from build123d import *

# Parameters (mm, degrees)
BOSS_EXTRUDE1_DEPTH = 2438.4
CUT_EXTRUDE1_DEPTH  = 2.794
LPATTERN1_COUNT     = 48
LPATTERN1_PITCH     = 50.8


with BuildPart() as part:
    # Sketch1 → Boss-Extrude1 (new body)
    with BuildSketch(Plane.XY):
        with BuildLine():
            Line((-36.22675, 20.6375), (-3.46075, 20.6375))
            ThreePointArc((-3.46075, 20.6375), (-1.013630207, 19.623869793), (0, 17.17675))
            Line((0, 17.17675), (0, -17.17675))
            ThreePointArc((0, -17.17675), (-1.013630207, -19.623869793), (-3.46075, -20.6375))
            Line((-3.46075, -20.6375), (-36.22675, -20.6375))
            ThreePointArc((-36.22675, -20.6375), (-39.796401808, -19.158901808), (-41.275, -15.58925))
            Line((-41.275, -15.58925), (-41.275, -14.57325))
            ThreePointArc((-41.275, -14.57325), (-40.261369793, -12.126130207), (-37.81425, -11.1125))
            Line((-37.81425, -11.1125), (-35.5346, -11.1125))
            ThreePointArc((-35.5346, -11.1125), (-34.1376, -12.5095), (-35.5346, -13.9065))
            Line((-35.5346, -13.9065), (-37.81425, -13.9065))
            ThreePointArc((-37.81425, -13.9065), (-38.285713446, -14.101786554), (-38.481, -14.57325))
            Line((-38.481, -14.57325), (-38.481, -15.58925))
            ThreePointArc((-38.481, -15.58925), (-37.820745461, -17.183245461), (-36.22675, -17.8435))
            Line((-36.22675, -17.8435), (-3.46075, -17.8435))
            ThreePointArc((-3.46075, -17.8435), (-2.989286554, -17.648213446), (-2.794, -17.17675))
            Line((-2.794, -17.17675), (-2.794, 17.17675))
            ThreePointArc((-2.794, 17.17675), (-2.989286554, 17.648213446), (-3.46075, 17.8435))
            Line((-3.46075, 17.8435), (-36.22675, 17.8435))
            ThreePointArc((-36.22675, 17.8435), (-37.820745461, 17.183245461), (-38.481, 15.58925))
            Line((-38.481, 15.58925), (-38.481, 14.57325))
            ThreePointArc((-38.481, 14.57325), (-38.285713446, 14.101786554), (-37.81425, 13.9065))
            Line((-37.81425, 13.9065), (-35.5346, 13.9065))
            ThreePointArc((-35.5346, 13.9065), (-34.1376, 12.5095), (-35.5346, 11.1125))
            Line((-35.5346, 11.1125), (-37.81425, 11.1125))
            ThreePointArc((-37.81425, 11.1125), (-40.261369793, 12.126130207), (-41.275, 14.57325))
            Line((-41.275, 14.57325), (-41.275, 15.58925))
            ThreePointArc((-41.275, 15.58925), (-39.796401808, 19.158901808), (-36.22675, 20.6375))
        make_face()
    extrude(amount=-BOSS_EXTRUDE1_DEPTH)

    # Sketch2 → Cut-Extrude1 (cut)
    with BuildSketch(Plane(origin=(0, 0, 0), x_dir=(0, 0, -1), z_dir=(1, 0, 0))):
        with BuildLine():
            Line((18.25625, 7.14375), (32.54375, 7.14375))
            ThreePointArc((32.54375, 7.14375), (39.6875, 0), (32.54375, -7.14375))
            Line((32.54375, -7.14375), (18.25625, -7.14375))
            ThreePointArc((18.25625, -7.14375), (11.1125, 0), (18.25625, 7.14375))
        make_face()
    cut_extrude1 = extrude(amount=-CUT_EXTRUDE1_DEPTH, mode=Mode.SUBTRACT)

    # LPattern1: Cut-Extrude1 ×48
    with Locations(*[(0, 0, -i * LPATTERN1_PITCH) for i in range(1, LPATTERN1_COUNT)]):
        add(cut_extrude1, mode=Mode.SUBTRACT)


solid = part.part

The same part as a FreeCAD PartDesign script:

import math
import FreeCAD as App
import Part
import Sketcher
Q = App.Units.Quantity

doc = App.newDocument("Part")
params = doc.addObject("Spreadsheet::Sheet", "Params")
for row, (alias, value) in enumerate([
    ("sketch1_radius", "0.055 in"),
    ("sketch1_width", "1.29 in"),
    ("sketch1_height", "0.04 in"),
    ("pad1_length", "96 in"),
    ("sketch2_radius", "0.28125 in"),
    ("sketch2_height", "0.5625 in"),
    ("pocket1_length", "0.11 in"),
    ("linearpattern_pitch", "2 in"),
], start=1):
    params.set(f"A{row}", alias)
    params.set(f"B{row}", "=" + value)
    params.setAlias(f"B{row}", alias)

body = doc.addObject("PartDesign::Body", "Body")

sketch1 = body.newObject("Sketcher::SketchObject", "Sketch")
sketch1.AttachmentSupport = (doc.getObject("XY_Plane"), [""])
sketch1.MapMode = "FlatFace"
sketch1.addGeometry([
    Part.LineSegment(App.Vector(-3.5, 20.6, 0), App.Vector(-36.2, 20.6, 0)),
    Part.ArcOfCircle(Part.Circle(App.Vector(-36.2, 15.6, 0), App.Vector(0, 0, 1), 5), math.radians(90), math.radians(180)),
    Part.LineSegment(App.Vector(-41.3, 15.6, 0), App.Vector(-41.3, 14.6, 0)),
    Part.ArcOfCircle(Part.Circle(App.Vector(-37.8, 14.6, 0), App.Vector(0, 0, 1), 3.5), math.radians(180), math.radians(270)),
    Part.LineSegment(App.Vector(-37.8, 11.1, 0), App.Vector(-35.5, 11.1, 0)),
    Part.ArcOfCircle(Part.Circle(App.Vector(-35.5, 12.5, 0), App.Vector(0, 0, 1), 1.4), math.radians(-90), math.radians(90)),
    Part.LineSegment(App.Vector(-35.5, 13.9, 0), App.Vector(-37.8, 13.9, 0)),
    Part.ArcOfCircle(Part.Circle(App.Vector(-37.8, 14.6, 0), App.Vector(0, 0, 1), 0.7), math.radians(-180), math.radians(-90)),
    Part.LineSegment(App.Vector(-38.5, 14.6, 0), App.Vector(-38.5, 15.6, 0)),
    Part.ArcOfCircle(Part.Circle(App.Vector(-36.2, 15.6, 0), App.Vector(0, 0, 1), 2.3), math.radians(90), math.radians(180)),
    Part.LineSegment(App.Vector(-36.2, 17.8, 0), App.Vector(-3.5, 17.8, 0)),
    Part.ArcOfCircle(Part.Circle(App.Vector(-3.5, 17.2, 0), App.Vector(0, 0, 1), 0.7), math.radians(0), math.radians(90)),
    Part.LineSegment(App.Vector(-2.8, 17.2, 0), App.Vector(-2.8, -17.2, 0)),
    Part.ArcOfCircle(Part.Circle(App.Vector(-3.5, -17.2, 0), App.Vector(0, 0, 1), 0.7), math.radians(-90), math.radians(0)),
    Part.LineSegment(App.Vector(-3.5, -17.8, 0), App.Vector(-36.2, -17.8, 0)),
    Part.ArcOfCircle(Part.Circle(App.Vector(-36.2, -15.6, 0), App.Vector(0, 0, 1), 2.3), math.radians(-180), math.radians(-90)),
    Part.LineSegment(App.Vector(-38.5, -15.6, 0), App.Vector(-38.5, -14.6, 0)),
    Part.ArcOfCircle(Part.Circle(App.Vector(-37.8, -14.6, 0), App.Vector(0, 0, 1), 0.7), math.radians(90), math.radians(180)),
    Part.LineSegment(App.Vector(-37.8, -13.9, 0), App.Vector(-35.5, -13.9, 0)),
    Part.ArcOfCircle(Part.Circle(App.Vector(-35.5, -12.5, 0), App.Vector(0, 0, 1), 1.4), math.radians(-90), math.radians(90)),
    Part.LineSegment(App.Vector(-35.5, -11.1, 0), App.Vector(-37.8, -11.1, 0)),
    Part.ArcOfCircle(Part.Circle(App.Vector(-37.8, -14.6, 0), App.Vector(0, 0, 1), 3.5), math.radians(90), math.radians(180)),
    Part.LineSegment(App.Vector(-41.3, -14.6, 0), App.Vector(-41.3, -15.6, 0)),
    Part.ArcOfCircle(Part.Circle(App.Vector(-36.2, -15.6, 0), App.Vector(0, 0, 1), 5), math.radians(180), math.radians(270)),
    Part.LineSegment(App.Vector(-36.2, -20.6, 0), App.Vector(-3.5, -20.6, 0)),
    Part.ArcOfCircle(Part.Circle(App.Vector(-3.5, -17.2, 0), App.Vector(0, 0, 1), 3.5), math.radians(-90), math.radians(0)),
    Part.LineSegment(App.Vector(0, -17.2, 0), App.Vector(0, 17.2, 0)),
    Part.ArcOfCircle(Part.Circle(App.Vector(-3.5, 17.2, 0), App.Vector(0, 0, 1), 3.5), math.radians(0), math.radians(90)),
], False)
sketch1.addConstraint([
    Sketcher.Constraint("Tangent", 0, 2, 1, 1),
    Sketcher.Constraint("Tangent", 1, 2, 2, 1),
    Sketcher.Constraint("Tangent", 2, 2, 3, 1),
    Sketcher.Constraint("Tangent", 3, 2, 4, 1),
    Sketcher.Constraint("Tangent", 4, 2, 5, 1),
    Sketcher.Constraint("Tangent", 5, 2, 6, 1),
    Sketcher.Constraint("Tangent", 6, 2, 7, 2),
    Sketcher.Constraint("Tangent", 7, 1, 8, 1),
    Sketcher.Constraint("Tangent", 8, 2, 9, 2),
    Sketcher.Constraint("Tangent", 9, 1, 10, 1),
    Sketcher.Constraint("Tangent", 10, 2, 11, 2),
    Sketcher.Constraint("Tangent", 11, 1, 12, 1),
    Sketcher.Constraint("Tangent", 12, 2, 13, 2),
    Sketcher.Constraint("Tangent", 13, 1, 14, 1),
    Sketcher.Constraint("Tangent", 14, 2, 15, 2),
    Sketcher.Constraint("Tangent", 15, 1, 16, 1),
    Sketcher.Constraint("Tangent", 16, 2, 17, 2),
    Sketcher.Constraint("Tangent", 17, 1, 18, 1),
    Sketcher.Constraint("Tangent", 18, 2, 19, 1),
    Sketcher.Constraint("Tangent", 19, 2, 20, 1),
    Sketcher.Constraint("Tangent", 20, 2, 21, 1),
    Sketcher.Constraint("Tangent", 21, 2, 22, 1),
    Sketcher.Constraint("Tangent", 22, 2, 23, 1),
    Sketcher.Constraint("Tangent", 23, 2, 24, 1),
    Sketcher.Constraint("Tangent", 24, 2, 25, 1),
    Sketcher.Constraint("Tangent", 25, 2, 26, 1),
    Sketcher.Constraint("Tangent", 26, 2, 27, 1),
    Sketcher.Constraint("Tangent", 27, 2, 0, 1),
    Sketcher.Constraint("Horizontal", 0),
    Sketcher.Constraint("Vertical", 2),
    Sketcher.Constraint("Horizontal", 4),
    Sketcher.Constraint("Horizontal", 6),
    Sketcher.Constraint("Vertical", 8),
    Sketcher.Constraint("Horizontal", 10),
    Sketcher.Constraint("Vertical", 12),
    Sketcher.Constraint("Horizontal", 14),
    Sketcher.Constraint("Vertical", 16),
    Sketcher.Constraint("Horizontal", 18),
    Sketcher.Constraint("Horizontal", 20),
    Sketcher.Constraint("Vertical", 22),
    Sketcher.Constraint("Horizontal", 24),
    Sketcher.Constraint("Vertical", 26),
    Sketcher.Constraint("Coincident", 7, 3, 3, 3),
    Sketcher.Constraint("Coincident", 9, 3, 1, 3),
    Sketcher.Constraint("Coincident", 21, 3, 17, 3),
    Sketcher.Constraint("Coincident", 23, 3, 15, 3),
    Sketcher.Constraint("Coincident", 25, 3, 13, 3),
    Sketcher.Constraint("Coincident", 27, 3, 11, 3),
    Sketcher.Constraint("Equal", 7, 11),
    Sketcher.Constraint("Equal", 11, 13),
    Sketcher.Constraint("Equal", 9, 15),
    Sketcher.Constraint("Equal", 13, 17),
    Sketcher.Constraint("Symmetric", 25, 2, 26, 2, -1, 1),
    Sketcher.Constraint("Symmetric", 3, 3, 17, 3, -1),
    Sketcher.Constraint("Vertical", 5, 3, 19, 3),
    Sketcher.Constraint("Radius", 5, Q("0.055 in")),
    Sketcher.Constraint("DistanceX", 0, 2, 0, 1, Q("1.29 in")),
    Sketcher.Constraint("DistanceY", 2, 2, 2, 1, Q("0.04 in")),
    Sketcher.Constraint("DistanceY", 13, 3, 9, 3, Q("1.29 in")),
    Sketcher.Constraint("DistanceY", 5, 3, 0, 2, Q("0.32 in")),
    Sketcher.Constraint("DistanceY", 12, 2, 12, 1, Q("1.3525 in")),
    Sketcher.Constraint("DistanceX", 5, 3, -1, 1, Q("1.399 in")),
])
sketch1.setExpression("Constraints[55]", "Params.sketch1_radius")
sketch1.setExpression("Constraints[56]", "Params.sketch1_width")
sketch1.setExpression("Constraints[57]", "Params.sketch1_height")
pad1 = body.newObject("PartDesign::Pad", "Pad")
pad1.Profile = sketch1
pad1.setExpression("Length", "Params.pad1_length")
pad1.Reversed = True

sketch2 = body.newObject("Sketcher::SketchObject", "Sketch001")
sketch2.AttachmentSupport = (doc.getObject("YZ_Plane"), [""])
sketch2.MapMode = "FlatFace"
sketch2.addGeometry([
    Part.LineSegment(App.Vector(7, -33, 0), App.Vector(7, -18, 0)),
    Part.ArcOfCircle(Part.Circle(App.Vector(0, -18, 0), App.Vector(0, 0, 1), 7), math.radians(0), math.radians(180)),
    Part.LineSegment(App.Vector(-7, -18, 0), App.Vector(-7, -33, 0)),
    Part.ArcOfCircle(Part.Circle(App.Vector(0, -33, 0), App.Vector(0, 0, 1), 7), math.radians(180), math.radians(360)),
], False)
sketch2.addConstraint([
    Sketcher.Constraint("Tangent", 0, 2, 1, 1),
    Sketcher.Constraint("Tangent", 1, 2, 2, 1),
    Sketcher.Constraint("Tangent", 2, 2, 3, 1),
    Sketcher.Constraint("Tangent", 3, 2, 0, 1),
    Sketcher.Constraint("Vertical", 0),
    Sketcher.Constraint("Vertical", 2),
    Sketcher.Constraint("PointOnObject", 1, 3, -2),
    Sketcher.Constraint("Radius", 1, Q("0.28125 in")),
    Sketcher.Constraint("DistanceY", 0, 1, 0, 2, Q("0.5625 in")),
    Sketcher.Constraint("DistanceY", 1, 3, -1, 1, Q("0.71875 in")),
])
sketch2.setExpression("Constraints[7]", "Params.sketch2_radius")
sketch2.setExpression("Constraints[8]", "Params.sketch2_height")
pocket1 = body.newObject("PartDesign::Pocket", "Pocket")
pocket1.Profile = sketch2
pocket1.setExpression("Length", "Params.pocket1_length")
doc.recompute()

linearpattern = body.newObject("PartDesign::LinearPattern", "LinearPattern")
linearpattern.Originals = [pocket1]
linearpattern.Direction = (doc.getObject("Z_Axis"), [""])
linearpattern.Mode = "offset"
linearpattern.setExpression("Offset", "Params.linearpattern_pitch")
linearpattern.Occurrences = 48
linearpattern.Reversed = True
body.Tip = linearpattern

doc.recompute()
